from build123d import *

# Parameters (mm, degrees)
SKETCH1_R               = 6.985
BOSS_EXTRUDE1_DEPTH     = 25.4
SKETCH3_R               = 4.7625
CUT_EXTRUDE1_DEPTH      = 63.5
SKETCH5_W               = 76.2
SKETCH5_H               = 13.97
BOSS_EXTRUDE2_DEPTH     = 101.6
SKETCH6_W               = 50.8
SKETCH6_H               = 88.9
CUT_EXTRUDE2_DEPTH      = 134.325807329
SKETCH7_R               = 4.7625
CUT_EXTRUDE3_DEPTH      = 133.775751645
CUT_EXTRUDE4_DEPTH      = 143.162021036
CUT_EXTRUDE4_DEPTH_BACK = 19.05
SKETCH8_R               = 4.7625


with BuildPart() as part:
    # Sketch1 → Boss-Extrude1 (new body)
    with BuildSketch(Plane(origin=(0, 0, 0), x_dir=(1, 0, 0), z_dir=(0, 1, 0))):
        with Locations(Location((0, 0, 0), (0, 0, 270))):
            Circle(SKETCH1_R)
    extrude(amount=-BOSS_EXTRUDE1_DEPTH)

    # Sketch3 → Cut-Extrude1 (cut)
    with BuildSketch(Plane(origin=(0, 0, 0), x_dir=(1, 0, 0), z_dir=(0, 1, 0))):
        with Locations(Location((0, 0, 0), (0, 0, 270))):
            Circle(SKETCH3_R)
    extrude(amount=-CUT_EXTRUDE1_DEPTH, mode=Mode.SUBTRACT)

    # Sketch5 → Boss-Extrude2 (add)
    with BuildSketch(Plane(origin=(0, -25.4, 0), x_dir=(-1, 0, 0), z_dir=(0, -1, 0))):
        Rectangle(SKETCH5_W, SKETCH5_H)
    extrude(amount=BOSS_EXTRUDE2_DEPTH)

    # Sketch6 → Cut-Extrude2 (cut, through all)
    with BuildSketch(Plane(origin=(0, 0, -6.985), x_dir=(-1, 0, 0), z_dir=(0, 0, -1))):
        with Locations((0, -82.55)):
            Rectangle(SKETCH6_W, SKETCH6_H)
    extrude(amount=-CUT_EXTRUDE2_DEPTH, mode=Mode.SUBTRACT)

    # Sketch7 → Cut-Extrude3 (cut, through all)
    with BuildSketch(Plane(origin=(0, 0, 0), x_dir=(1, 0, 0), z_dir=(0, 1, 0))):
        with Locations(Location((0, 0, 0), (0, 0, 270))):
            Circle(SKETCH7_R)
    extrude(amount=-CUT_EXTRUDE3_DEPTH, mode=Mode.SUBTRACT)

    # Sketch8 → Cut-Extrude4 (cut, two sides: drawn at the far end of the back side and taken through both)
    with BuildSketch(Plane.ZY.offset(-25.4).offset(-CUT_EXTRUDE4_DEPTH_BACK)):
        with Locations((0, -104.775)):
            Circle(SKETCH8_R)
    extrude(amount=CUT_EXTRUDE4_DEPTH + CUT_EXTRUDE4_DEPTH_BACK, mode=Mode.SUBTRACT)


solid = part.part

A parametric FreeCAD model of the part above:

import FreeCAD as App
import Part
import Sketcher
Q = App.Units.Quantity

doc = App.newDocument("Part")
body = doc.addObject("PartDesign::Body", "Body")

# Sketch on XZ plane
sketch1 = body.newObject("Sketcher::SketchObject", "Sketch")
sketch1.AttachmentSupport = (doc.getObject("XZ_Plane"), [""])
sketch1.MapMode = "FlatFace"
sketch1.addGeometry(Part.Circle(App.Vector(0, 0, 0), App.Vector(0, 0, 1), 6.985), False)
sketch1.addConstraint(Sketcher.Constraint("Coincident", 0, 3, -1, 1))
sketch1.addConstraint(Sketcher.Constraint("Diameter", 0, Q("0.55 in")))
pad1 = body.newObject("PartDesign::Pad", "Pad")
pad1.Profile = sketch1
pad1.Length = Q("1 in")

# Sketch on XZ plane
sketch2 = body.newObject("Sketcher::SketchObject", "Sketch001")
sketch2.AttachmentSupport = (doc.getObject("XZ_Plane"), [""])
sketch2.MapMode = "FlatFace"
sketch2.addGeometry(Part.Circle(App.Vector(0, 0, 0), App.Vector(0, 0, 1), 4.7625), False)
sketch2.addConstraint(Sketcher.Constraint("Coincident", 0, 3, -1, 1))
sketch2.addConstraint(Sketcher.Constraint("Diameter", 0, Q("0.375 in")))
pocket1 = body.newObject("PartDesign::Pocket", "Pocket")
pocket1.Profile = sketch2
pocket1.Length = Q("2.5 in")
pocket1.Reversed = True

# Sketch on XZ plane
sketch3 = body.newObject("Sketcher::SketchObject", "Sketch002")
sketch3.AttachmentSupport = (doc.getObject("XZ_Plane"), [""])
sketch3.MapMode = "FlatFace"
sketch3.AttachmentOffset = App.Placement(App.Vector(0, 0, 1 * 25.4), App.Rotation())
sketch3.addGeometry(Part.LineSegment(App.Vector(38.1, -6.985, 0), App.Vector(38.1, 6.985, 0)), False)
sketch3.addGeometry(Part.LineSegment(App.Vector(38.1, 6.985, 0), App.Vector(-38.1, 6.985, 0)), False)
sketch3.addGeometry(Part.LineSegment(App.Vector(-38.1, 6.985, 0), App.Vector(-38.1, -6.985, 0)), False)
sketch3.addGeometry(Part.LineSegment(App.Vector(-38.1, -6.985, 0), App.Vector(38.1, -6.985, 0)), False)
sketch3.addConstraint(Sketcher.Constraint("Coincident", 0, 2, 1, 1))
sketch3.addConstraint(Sketcher.Constraint("Coincident", 1, 2, 2, 1))
sketch3.addConstraint(Sketcher.Constraint("Coincident", 2, 2, 3, 1))
sketch3.addConstraint(Sketcher.Constraint("Coincident", 3, 2, 0, 1))
sketch3.addConstraint(Sketcher.Constraint("Vertical", 0))
sketch3.addConstraint(Sketcher.Constraint("Horizontal", 1))
sketch3.addConstraint(Sketcher.Constraint("Vertical", 2))
sketch3.addConstraint(Sketcher.Constraint("Horizontal", 3))
sketch3.addConstraint(Sketcher.Constraint("Symmetric", 0, 2, 2, 2, -1, 1))
sketch3.addConstraint(Sketcher.Constraint("DistanceX", 1, 2, 1, 1, Q("3 in")))
sketch3.addConstraint(Sketcher.Constraint("DistanceY", 0, 1, 0, 2, Q("0.55 in")))
pad2 = body.newObject("PartDesign::Pad", "Pad001")
pad2.Profile = sketch3
pad2.Length = Q("4 in")

# Sketch on XY plane
sketch4 = body.newObject("Sketcher::SketchObject", "Sketch003")
sketch4.AttachmentSupport = (doc.getObject("XY_Plane"), [""])
sketch4.MapMode = "FlatFace"
sketch4.AttachmentOffset = App.Placement(App.Vector(0, 0, -0.275 * 25.4), App.Rotation())
sketch4.addGeometry(Part.LineSegment(App.Vector(25.4, -38.1, 0), App.Vector(25.4, -127, 0)), False)
sketch4.addGeometry(Part.LineSegment(App.Vector(25.4, -127, 0), App.Vector(-25.4, -127, 0)), False)
sketch4.addGeometry(Part.LineSegment(App.Vector(-25.4, -127, 0), App.Vector(-25.4, -38.1, 0)), False)
sketch4.addGeometry(Part.LineSegment(App.Vector(-25.4, -38.1, 0), App.Vector(25.4, -38.1, 0)), False)
sketch4.addConstraint(Sketcher.Constraint("Coincident", 0, 2, 1, 1))
sketch4.addConstraint(Sketcher.Constraint("Coincident", 1, 2, 2, 1))
sketch4.addConstraint(Sketcher.Constraint("Coincident", 2, 2, 3, 1))
sketch4.addConstraint(Sketcher.Constraint("Coincident", 3, 2, 0, 1))
sketch4.addConstraint(Sketcher.Constraint("Vertical", 0))
sketch4.addConstraint(Sketcher.Constraint("Horizontal", 1))
sketch4.addConstraint(Sketcher.Constraint("Vertical", 2))
sketch4.addConstraint(Sketcher.Constraint("Horizontal", 3))
sketch4.addConstraint(Sketcher.Constraint("DistanceX", 1, 2, 1, 1, Q("2 in")))
sketch4.addConstraint(Sketcher.Constraint("DistanceY", 0, 2, 0, 1, Q("3.5 in")))
sketch4.addConstraint(Sketcher.Constraint("DistanceX", -1, 1, 0, 2, Q("1 in")))
sketch4.addConstraint(Sketcher.Constraint("DistanceY", 0, 2, -1, 1, Q("5 in")))
pocket2 = body.newObject("PartDesign::Pocket", "Pocket001")
pocket2.Profile = sketch4
pocket2.Type = "ThroughAll"
pocket2.Reversed = True

# Sketch on XZ plane
sketch5 = body.newObject("Sketcher::SketchObject", "Sketch004")
sketch5.AttachmentSupport = (doc.getObject("XZ_Plane"), [""])
sketch5.MapMode = "FlatFace"
sketch5.addGeometry(Part.Circle(App.Vector(0, 0, 0), App.Vector(0, 0, 1), 4.7625), False)
sketch5.addConstraint(Sketcher.Constraint("Coincident", 0, 3, -1, 1))
sketch5.addConstraint(Sketcher.Constraint("Diameter", 0, Q("0.375 in")))
pocket3 = body.newObject("PartDesign::Pocket", "Pocket002")
pocket3.Profile = sketch5
pocket3.Type = "ThroughAll"
pocket3.Reversed = True

# Sketch on YZ plane
sketch6 = body.newObject("Sketcher::SketchObject", "Sketch005")
sketch6.AttachmentSupport = (doc.getObject("YZ_Plane"), [""])
sketch6.MapMode = "FlatFace"
sketch6.AttachmentOffset = App.Placement(App.Vector(0, 0, 1 * 25.4), App.Rotation())
sketch6.addGeometry(Part.Circle(App.Vector(-104.775, 0, 0), App.Vector(0, 0, 1), 4.7625), False)
sketch6.addConstraint(Sketcher.Constraint("PointOnObject", 0, 3, -1))
sketch6.addConstraint(Sketcher.Constraint("Diameter", 0, Q("0.375 in")))
sketch6.addConstraint(Sketcher.Constraint("DistanceX", 0, 3, -1, 1, Q("4.125 in")))
pocket4 = body.newObject("PartDesign::Pocket", "Pocket003")
pocket4.Profile = sketch6
pocket4.Type = "ThroughAll"
pocket4.Midplane = True

doc.recompute()
